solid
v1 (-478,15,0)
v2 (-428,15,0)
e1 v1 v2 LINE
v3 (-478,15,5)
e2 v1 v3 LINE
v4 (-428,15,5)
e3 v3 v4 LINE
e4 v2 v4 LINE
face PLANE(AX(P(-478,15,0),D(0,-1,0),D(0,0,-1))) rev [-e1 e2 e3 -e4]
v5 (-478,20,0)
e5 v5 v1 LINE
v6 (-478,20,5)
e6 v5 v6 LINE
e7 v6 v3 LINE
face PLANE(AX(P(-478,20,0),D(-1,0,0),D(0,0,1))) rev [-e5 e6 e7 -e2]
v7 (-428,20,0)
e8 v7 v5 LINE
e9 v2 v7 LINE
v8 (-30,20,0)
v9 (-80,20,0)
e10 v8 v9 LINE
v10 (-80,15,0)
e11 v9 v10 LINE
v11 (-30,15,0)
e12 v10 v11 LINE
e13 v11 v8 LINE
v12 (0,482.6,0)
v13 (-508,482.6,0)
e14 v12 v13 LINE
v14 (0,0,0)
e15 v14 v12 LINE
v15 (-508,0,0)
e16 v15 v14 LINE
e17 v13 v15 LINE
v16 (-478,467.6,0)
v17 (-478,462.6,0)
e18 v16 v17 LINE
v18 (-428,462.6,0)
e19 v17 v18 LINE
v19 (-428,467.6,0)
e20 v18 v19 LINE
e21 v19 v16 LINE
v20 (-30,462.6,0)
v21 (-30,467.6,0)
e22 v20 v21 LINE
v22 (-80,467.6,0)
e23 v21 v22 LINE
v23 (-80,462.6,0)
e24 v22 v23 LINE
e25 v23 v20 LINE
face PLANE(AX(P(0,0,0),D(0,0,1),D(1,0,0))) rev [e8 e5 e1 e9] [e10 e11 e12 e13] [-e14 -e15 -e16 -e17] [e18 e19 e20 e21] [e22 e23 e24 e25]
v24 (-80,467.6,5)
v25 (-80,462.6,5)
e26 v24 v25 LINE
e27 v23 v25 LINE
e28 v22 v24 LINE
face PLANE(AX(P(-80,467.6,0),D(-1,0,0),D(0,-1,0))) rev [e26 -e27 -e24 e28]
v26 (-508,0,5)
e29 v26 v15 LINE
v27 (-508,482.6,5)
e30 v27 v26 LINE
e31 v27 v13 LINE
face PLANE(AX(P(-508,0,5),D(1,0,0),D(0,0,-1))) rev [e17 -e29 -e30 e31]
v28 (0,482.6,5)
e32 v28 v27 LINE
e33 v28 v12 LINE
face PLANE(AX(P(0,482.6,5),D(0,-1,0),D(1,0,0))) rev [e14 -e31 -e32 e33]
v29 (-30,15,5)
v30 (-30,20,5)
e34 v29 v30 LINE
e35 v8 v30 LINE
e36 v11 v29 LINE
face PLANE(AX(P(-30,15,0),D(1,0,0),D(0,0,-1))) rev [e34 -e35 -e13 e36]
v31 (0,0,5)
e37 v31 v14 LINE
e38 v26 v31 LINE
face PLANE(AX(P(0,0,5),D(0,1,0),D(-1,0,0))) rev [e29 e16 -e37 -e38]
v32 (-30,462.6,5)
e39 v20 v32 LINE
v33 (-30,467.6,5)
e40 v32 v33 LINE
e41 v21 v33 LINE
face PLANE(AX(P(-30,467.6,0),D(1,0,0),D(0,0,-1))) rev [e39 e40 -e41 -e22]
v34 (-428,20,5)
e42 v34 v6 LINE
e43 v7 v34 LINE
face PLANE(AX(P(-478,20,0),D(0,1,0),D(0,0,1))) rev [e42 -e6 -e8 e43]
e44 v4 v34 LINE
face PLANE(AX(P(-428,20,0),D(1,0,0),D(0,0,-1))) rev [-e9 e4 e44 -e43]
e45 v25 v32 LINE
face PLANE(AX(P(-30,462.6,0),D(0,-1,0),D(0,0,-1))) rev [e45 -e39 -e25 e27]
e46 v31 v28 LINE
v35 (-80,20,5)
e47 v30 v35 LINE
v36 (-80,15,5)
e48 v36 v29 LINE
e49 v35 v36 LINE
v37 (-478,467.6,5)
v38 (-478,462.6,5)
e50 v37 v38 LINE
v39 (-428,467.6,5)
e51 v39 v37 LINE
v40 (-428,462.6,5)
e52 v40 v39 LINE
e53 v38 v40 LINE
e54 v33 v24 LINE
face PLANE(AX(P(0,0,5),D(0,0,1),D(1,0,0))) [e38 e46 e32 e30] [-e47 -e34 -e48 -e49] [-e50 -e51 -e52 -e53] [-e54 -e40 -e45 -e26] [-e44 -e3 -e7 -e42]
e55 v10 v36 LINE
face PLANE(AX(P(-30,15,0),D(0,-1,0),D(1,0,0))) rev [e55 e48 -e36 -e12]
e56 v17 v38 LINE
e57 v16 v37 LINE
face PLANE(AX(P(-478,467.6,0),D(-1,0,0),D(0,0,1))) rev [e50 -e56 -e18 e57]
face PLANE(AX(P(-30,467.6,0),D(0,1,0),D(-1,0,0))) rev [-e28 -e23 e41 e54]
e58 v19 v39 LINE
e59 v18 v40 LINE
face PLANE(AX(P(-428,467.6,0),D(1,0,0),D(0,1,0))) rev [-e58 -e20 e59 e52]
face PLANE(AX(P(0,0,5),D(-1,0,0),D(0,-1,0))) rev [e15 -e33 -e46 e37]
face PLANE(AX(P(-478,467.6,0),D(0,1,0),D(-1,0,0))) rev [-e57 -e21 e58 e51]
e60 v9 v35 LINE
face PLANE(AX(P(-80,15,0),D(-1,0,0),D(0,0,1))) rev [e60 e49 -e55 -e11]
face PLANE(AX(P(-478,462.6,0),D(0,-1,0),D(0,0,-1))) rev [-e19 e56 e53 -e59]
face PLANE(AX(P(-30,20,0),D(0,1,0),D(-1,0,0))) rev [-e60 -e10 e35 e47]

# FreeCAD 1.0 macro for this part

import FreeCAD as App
import Part
import Sketcher

doc = App.newDocument("Part")
body = doc.addObject("PartDesign::Body", "Body")

sketch1 = doc.addObject("Sketcher::SketchObject", "Sketch")
body.addObject(sketch1)
sketch1.AttachmentSupport = (doc.XY_Plane, [""])
sketch1.MapMode = "FlatFace"
sketch1.addGeometry([
    Part.LineSegment(App.Vector(-508, 483, 0), App.Vector(-508, 0, 0)),
    Part.LineSegment(App.Vector(-508, 0, 0), App.Vector(0, 0, 0)),
    Part.LineSegment(App.Vector(0, 0, 0), App.Vector(0, 483, 0)),
    Part.LineSegment(App.Vector(0, 483, 0), App.Vector(-508, 483, 0)),
], False)
sketch1.addConstraint([
    Sketcher.Constraint("Coincident", 0, 2, 1, 1),
    Sketcher.Constraint("Coincident", 1, 2, 2, 1),
    Sketcher.Constraint("Coincident", 2, 2, 3, 1),
    Sketcher.Constraint("Coincident", 3, 2, 0, 1),
    Sketcher.Constraint("Vertical", 0),
    Sketcher.Constraint("Horizontal", 1),
    Sketcher.Constraint("Vertical", 2),
    Sketcher.Constraint("Horizontal", 3),
    Sketcher.Constraint("Coincident", 1, 2, -1, 1),
    Sketcher.Constraint("DistanceX", 1, 1, 1, 2, 508.0),
    Sketcher.Constraint("DistanceY", 0, 2, 0, 1, 482.6),
])
pad1 = doc.addObject("PartDesign::Pad", "Pad")
body.addObject(pad1)
pad1.Profile = sketch1
pad1.Length = 5

sketch2 = doc.addObject("Sketcher::SketchObject", "Sketch001")
body.addObject(sketch2)
sketch2.AttachmentSupport = (doc.XY_Plane, [""])
sketch2.MapMode = "FlatFace"
sketch2.AttachmentOffset = App.Placement(App.Vector(0, 0, 5), App.Rotation())
sketch2.addGeometry([
    Part.LineSegment(App.Vector(-478, 468, 0), App.Vector(-478, 463, 0)),
    Part.LineSegment(App.Vector(-478, 463, 0), App.Vector(-428, 463, 0)),
    Part.LineSegment(App.Vector(-428, 463, 0), App.Vector(-428, 468, 0)),
    Part.LineSegment(App.Vector(-428, 468, 0), App.Vector(-478, 468, 0)),
    Part.LineSegment(App.Vector(-80, 468, 0), App.Vector(-80, 463, 0)),
    Part.LineSegment(App.Vector(-80, 463, 0), App.Vector(-30, 463, 0)),
    Part.LineSegment(App.Vector(-30, 463, 0), App.Vector(-30, 468, 0)),
    Part.LineSegment(App.Vector(-30, 468, 0), App.Vector(-80, 468, 0)),
    Part.LineSegment(App.Vector(-80, 20, 0), App.Vector(-80, 15, 0)),
    Part.LineSegment(App.Vector(-80, 15, 0), App.Vector(-30, 15, 0)),
    Part.LineSegment(App.Vector(-30, 15, 0), App.Vector(-30, 20, 0)),
    Part.LineSegment(App.Vector(-30, 20, 0), App.Vector(-80, 20, 0)),
    Part.LineSegment(App.Vector(-478, 20, 0), App.Vector(-478, 15, 0)),
    Part.LineSegment(App.Vector(-478, 15, 0), App.Vector(-428, 15, 0)),
    Part.LineSegment(App.Vector(-428, 15, 0), App.Vector(-428, 20, 0)),
    Part.LineSegment(App.Vector(-428, 20, 0), App.Vector(-478, 20, 0)),
], False)
sketch2.addConstraint([
    Sketcher.Constraint("Coincident", 0, 2, 1, 1),
    Sketcher.Constraint("Coincident", 1, 2, 2, 1),
    Sketcher.Constraint("Coincident", 2, 2, 3, 1),
    Sketcher.Constraint("Coincident", 3, 2, 0, 1),
    Sketcher.Constraint("Coincident", 4, 2, 5, 1),
    Sketcher.Constraint("Coincident", 5, 2, 6, 1),
    Sketcher.Constraint("Coincident", 6, 2, 7, 1),
    Sketcher.Constraint("Coincident", 7, 2, 4, 1),
    Sketcher.Constraint("Coincident", 8, 2, 9, 1),
    Sketcher.Constraint("Coincident", 9, 2, 10, 1),
    Sketcher.Constraint("Coincident", 10, 2, 11, 1),
    Sketcher.Constraint("Coincident", 11, 2, 8, 1),
    Sketcher.Constraint("Coincident", 12, 2, 13, 1),
    Sketcher.Constraint("Coincident", 13, 2, 14, 1),
    Sketcher.Constraint("Coincident", 14, 2, 15, 1),
    Sketcher.Constraint("Coincident", 15, 2, 12, 1),
    Sketcher.Constraint("Vertical", 0),
    Sketcher.Constraint("Horizontal", 1),
    Sketcher.Constraint("Vertical", 2),
    Sketcher.Constraint("Horizontal", 3),
    Sketcher.Constraint("Vertical", 4),
    Sketcher.Constraint("Horizontal", 5),
    Sketcher.Constraint("Vertical", 6),
    Sketcher.Constraint("Horizontal", 7),
    Sketcher.Constraint("Vertical", 8),
    Sketcher.Constraint("Horizontal", 9),
    Sketcher.Constraint("Vertical", 10),
    Sketcher.Constraint("Horizontal", 11),
    Sketcher.Constraint("Vertical", 12),
    Sketcher.Constraint("Horizontal", 13),
    Sketcher.Constraint("Vertical", 14),
    Sketcher.Constraint("Horizontal", 15),
    Sketcher.Constraint("Horizontal", 1, 2, 4, 2),
    Sketcher.Constraint("Horizontal", 3, 2, 6, 2),
    Sketcher.Constraint("Horizontal", 9, 2, 12, 2),
    Sketcher.Constraint("Horizontal", 11, 2, 14, 2),
    Sketcher.Constraint("Vertical", 7, 2, 8, 2),
    Sketcher.Constraint("Vertical", 6, 2, 9, 2),
    Sketcher.Constraint("Vertical", 3, 2, 12, 2),
    Sketcher.Constraint("Vertical", 2, 2, 13, 2),
    Sketcher.Constraint("Equal", 3, 5),
    Sketcher.Constraint("Equal", 6, 8),
    Sketcher.Constraint("DistanceX", 1, 1, 1, 2, 50.0),
    Sketcher.Constraint("DistanceY", 0, 2, 0, 1, 5.0),
    Sketcher.Constraint("DistanceX", 0, 2, -1, 1, 478.0),
    Sketcher.Constraint("DistanceX", 4, 2, -1, 1, 80.0),
    Sketcher.Constraint("DistanceY", -1, 1, 8, 2, 15.0),
    Sketcher.Constraint("DistanceY", -1, 1, 0, 2, 462.6),
])
pocket1 = doc.addObject("PartDesign::Pocket", "Pocket")
body.addObject(pocket1)
pocket1.Profile = sketch2
pocket1.Length = 5

doc.recompute()
